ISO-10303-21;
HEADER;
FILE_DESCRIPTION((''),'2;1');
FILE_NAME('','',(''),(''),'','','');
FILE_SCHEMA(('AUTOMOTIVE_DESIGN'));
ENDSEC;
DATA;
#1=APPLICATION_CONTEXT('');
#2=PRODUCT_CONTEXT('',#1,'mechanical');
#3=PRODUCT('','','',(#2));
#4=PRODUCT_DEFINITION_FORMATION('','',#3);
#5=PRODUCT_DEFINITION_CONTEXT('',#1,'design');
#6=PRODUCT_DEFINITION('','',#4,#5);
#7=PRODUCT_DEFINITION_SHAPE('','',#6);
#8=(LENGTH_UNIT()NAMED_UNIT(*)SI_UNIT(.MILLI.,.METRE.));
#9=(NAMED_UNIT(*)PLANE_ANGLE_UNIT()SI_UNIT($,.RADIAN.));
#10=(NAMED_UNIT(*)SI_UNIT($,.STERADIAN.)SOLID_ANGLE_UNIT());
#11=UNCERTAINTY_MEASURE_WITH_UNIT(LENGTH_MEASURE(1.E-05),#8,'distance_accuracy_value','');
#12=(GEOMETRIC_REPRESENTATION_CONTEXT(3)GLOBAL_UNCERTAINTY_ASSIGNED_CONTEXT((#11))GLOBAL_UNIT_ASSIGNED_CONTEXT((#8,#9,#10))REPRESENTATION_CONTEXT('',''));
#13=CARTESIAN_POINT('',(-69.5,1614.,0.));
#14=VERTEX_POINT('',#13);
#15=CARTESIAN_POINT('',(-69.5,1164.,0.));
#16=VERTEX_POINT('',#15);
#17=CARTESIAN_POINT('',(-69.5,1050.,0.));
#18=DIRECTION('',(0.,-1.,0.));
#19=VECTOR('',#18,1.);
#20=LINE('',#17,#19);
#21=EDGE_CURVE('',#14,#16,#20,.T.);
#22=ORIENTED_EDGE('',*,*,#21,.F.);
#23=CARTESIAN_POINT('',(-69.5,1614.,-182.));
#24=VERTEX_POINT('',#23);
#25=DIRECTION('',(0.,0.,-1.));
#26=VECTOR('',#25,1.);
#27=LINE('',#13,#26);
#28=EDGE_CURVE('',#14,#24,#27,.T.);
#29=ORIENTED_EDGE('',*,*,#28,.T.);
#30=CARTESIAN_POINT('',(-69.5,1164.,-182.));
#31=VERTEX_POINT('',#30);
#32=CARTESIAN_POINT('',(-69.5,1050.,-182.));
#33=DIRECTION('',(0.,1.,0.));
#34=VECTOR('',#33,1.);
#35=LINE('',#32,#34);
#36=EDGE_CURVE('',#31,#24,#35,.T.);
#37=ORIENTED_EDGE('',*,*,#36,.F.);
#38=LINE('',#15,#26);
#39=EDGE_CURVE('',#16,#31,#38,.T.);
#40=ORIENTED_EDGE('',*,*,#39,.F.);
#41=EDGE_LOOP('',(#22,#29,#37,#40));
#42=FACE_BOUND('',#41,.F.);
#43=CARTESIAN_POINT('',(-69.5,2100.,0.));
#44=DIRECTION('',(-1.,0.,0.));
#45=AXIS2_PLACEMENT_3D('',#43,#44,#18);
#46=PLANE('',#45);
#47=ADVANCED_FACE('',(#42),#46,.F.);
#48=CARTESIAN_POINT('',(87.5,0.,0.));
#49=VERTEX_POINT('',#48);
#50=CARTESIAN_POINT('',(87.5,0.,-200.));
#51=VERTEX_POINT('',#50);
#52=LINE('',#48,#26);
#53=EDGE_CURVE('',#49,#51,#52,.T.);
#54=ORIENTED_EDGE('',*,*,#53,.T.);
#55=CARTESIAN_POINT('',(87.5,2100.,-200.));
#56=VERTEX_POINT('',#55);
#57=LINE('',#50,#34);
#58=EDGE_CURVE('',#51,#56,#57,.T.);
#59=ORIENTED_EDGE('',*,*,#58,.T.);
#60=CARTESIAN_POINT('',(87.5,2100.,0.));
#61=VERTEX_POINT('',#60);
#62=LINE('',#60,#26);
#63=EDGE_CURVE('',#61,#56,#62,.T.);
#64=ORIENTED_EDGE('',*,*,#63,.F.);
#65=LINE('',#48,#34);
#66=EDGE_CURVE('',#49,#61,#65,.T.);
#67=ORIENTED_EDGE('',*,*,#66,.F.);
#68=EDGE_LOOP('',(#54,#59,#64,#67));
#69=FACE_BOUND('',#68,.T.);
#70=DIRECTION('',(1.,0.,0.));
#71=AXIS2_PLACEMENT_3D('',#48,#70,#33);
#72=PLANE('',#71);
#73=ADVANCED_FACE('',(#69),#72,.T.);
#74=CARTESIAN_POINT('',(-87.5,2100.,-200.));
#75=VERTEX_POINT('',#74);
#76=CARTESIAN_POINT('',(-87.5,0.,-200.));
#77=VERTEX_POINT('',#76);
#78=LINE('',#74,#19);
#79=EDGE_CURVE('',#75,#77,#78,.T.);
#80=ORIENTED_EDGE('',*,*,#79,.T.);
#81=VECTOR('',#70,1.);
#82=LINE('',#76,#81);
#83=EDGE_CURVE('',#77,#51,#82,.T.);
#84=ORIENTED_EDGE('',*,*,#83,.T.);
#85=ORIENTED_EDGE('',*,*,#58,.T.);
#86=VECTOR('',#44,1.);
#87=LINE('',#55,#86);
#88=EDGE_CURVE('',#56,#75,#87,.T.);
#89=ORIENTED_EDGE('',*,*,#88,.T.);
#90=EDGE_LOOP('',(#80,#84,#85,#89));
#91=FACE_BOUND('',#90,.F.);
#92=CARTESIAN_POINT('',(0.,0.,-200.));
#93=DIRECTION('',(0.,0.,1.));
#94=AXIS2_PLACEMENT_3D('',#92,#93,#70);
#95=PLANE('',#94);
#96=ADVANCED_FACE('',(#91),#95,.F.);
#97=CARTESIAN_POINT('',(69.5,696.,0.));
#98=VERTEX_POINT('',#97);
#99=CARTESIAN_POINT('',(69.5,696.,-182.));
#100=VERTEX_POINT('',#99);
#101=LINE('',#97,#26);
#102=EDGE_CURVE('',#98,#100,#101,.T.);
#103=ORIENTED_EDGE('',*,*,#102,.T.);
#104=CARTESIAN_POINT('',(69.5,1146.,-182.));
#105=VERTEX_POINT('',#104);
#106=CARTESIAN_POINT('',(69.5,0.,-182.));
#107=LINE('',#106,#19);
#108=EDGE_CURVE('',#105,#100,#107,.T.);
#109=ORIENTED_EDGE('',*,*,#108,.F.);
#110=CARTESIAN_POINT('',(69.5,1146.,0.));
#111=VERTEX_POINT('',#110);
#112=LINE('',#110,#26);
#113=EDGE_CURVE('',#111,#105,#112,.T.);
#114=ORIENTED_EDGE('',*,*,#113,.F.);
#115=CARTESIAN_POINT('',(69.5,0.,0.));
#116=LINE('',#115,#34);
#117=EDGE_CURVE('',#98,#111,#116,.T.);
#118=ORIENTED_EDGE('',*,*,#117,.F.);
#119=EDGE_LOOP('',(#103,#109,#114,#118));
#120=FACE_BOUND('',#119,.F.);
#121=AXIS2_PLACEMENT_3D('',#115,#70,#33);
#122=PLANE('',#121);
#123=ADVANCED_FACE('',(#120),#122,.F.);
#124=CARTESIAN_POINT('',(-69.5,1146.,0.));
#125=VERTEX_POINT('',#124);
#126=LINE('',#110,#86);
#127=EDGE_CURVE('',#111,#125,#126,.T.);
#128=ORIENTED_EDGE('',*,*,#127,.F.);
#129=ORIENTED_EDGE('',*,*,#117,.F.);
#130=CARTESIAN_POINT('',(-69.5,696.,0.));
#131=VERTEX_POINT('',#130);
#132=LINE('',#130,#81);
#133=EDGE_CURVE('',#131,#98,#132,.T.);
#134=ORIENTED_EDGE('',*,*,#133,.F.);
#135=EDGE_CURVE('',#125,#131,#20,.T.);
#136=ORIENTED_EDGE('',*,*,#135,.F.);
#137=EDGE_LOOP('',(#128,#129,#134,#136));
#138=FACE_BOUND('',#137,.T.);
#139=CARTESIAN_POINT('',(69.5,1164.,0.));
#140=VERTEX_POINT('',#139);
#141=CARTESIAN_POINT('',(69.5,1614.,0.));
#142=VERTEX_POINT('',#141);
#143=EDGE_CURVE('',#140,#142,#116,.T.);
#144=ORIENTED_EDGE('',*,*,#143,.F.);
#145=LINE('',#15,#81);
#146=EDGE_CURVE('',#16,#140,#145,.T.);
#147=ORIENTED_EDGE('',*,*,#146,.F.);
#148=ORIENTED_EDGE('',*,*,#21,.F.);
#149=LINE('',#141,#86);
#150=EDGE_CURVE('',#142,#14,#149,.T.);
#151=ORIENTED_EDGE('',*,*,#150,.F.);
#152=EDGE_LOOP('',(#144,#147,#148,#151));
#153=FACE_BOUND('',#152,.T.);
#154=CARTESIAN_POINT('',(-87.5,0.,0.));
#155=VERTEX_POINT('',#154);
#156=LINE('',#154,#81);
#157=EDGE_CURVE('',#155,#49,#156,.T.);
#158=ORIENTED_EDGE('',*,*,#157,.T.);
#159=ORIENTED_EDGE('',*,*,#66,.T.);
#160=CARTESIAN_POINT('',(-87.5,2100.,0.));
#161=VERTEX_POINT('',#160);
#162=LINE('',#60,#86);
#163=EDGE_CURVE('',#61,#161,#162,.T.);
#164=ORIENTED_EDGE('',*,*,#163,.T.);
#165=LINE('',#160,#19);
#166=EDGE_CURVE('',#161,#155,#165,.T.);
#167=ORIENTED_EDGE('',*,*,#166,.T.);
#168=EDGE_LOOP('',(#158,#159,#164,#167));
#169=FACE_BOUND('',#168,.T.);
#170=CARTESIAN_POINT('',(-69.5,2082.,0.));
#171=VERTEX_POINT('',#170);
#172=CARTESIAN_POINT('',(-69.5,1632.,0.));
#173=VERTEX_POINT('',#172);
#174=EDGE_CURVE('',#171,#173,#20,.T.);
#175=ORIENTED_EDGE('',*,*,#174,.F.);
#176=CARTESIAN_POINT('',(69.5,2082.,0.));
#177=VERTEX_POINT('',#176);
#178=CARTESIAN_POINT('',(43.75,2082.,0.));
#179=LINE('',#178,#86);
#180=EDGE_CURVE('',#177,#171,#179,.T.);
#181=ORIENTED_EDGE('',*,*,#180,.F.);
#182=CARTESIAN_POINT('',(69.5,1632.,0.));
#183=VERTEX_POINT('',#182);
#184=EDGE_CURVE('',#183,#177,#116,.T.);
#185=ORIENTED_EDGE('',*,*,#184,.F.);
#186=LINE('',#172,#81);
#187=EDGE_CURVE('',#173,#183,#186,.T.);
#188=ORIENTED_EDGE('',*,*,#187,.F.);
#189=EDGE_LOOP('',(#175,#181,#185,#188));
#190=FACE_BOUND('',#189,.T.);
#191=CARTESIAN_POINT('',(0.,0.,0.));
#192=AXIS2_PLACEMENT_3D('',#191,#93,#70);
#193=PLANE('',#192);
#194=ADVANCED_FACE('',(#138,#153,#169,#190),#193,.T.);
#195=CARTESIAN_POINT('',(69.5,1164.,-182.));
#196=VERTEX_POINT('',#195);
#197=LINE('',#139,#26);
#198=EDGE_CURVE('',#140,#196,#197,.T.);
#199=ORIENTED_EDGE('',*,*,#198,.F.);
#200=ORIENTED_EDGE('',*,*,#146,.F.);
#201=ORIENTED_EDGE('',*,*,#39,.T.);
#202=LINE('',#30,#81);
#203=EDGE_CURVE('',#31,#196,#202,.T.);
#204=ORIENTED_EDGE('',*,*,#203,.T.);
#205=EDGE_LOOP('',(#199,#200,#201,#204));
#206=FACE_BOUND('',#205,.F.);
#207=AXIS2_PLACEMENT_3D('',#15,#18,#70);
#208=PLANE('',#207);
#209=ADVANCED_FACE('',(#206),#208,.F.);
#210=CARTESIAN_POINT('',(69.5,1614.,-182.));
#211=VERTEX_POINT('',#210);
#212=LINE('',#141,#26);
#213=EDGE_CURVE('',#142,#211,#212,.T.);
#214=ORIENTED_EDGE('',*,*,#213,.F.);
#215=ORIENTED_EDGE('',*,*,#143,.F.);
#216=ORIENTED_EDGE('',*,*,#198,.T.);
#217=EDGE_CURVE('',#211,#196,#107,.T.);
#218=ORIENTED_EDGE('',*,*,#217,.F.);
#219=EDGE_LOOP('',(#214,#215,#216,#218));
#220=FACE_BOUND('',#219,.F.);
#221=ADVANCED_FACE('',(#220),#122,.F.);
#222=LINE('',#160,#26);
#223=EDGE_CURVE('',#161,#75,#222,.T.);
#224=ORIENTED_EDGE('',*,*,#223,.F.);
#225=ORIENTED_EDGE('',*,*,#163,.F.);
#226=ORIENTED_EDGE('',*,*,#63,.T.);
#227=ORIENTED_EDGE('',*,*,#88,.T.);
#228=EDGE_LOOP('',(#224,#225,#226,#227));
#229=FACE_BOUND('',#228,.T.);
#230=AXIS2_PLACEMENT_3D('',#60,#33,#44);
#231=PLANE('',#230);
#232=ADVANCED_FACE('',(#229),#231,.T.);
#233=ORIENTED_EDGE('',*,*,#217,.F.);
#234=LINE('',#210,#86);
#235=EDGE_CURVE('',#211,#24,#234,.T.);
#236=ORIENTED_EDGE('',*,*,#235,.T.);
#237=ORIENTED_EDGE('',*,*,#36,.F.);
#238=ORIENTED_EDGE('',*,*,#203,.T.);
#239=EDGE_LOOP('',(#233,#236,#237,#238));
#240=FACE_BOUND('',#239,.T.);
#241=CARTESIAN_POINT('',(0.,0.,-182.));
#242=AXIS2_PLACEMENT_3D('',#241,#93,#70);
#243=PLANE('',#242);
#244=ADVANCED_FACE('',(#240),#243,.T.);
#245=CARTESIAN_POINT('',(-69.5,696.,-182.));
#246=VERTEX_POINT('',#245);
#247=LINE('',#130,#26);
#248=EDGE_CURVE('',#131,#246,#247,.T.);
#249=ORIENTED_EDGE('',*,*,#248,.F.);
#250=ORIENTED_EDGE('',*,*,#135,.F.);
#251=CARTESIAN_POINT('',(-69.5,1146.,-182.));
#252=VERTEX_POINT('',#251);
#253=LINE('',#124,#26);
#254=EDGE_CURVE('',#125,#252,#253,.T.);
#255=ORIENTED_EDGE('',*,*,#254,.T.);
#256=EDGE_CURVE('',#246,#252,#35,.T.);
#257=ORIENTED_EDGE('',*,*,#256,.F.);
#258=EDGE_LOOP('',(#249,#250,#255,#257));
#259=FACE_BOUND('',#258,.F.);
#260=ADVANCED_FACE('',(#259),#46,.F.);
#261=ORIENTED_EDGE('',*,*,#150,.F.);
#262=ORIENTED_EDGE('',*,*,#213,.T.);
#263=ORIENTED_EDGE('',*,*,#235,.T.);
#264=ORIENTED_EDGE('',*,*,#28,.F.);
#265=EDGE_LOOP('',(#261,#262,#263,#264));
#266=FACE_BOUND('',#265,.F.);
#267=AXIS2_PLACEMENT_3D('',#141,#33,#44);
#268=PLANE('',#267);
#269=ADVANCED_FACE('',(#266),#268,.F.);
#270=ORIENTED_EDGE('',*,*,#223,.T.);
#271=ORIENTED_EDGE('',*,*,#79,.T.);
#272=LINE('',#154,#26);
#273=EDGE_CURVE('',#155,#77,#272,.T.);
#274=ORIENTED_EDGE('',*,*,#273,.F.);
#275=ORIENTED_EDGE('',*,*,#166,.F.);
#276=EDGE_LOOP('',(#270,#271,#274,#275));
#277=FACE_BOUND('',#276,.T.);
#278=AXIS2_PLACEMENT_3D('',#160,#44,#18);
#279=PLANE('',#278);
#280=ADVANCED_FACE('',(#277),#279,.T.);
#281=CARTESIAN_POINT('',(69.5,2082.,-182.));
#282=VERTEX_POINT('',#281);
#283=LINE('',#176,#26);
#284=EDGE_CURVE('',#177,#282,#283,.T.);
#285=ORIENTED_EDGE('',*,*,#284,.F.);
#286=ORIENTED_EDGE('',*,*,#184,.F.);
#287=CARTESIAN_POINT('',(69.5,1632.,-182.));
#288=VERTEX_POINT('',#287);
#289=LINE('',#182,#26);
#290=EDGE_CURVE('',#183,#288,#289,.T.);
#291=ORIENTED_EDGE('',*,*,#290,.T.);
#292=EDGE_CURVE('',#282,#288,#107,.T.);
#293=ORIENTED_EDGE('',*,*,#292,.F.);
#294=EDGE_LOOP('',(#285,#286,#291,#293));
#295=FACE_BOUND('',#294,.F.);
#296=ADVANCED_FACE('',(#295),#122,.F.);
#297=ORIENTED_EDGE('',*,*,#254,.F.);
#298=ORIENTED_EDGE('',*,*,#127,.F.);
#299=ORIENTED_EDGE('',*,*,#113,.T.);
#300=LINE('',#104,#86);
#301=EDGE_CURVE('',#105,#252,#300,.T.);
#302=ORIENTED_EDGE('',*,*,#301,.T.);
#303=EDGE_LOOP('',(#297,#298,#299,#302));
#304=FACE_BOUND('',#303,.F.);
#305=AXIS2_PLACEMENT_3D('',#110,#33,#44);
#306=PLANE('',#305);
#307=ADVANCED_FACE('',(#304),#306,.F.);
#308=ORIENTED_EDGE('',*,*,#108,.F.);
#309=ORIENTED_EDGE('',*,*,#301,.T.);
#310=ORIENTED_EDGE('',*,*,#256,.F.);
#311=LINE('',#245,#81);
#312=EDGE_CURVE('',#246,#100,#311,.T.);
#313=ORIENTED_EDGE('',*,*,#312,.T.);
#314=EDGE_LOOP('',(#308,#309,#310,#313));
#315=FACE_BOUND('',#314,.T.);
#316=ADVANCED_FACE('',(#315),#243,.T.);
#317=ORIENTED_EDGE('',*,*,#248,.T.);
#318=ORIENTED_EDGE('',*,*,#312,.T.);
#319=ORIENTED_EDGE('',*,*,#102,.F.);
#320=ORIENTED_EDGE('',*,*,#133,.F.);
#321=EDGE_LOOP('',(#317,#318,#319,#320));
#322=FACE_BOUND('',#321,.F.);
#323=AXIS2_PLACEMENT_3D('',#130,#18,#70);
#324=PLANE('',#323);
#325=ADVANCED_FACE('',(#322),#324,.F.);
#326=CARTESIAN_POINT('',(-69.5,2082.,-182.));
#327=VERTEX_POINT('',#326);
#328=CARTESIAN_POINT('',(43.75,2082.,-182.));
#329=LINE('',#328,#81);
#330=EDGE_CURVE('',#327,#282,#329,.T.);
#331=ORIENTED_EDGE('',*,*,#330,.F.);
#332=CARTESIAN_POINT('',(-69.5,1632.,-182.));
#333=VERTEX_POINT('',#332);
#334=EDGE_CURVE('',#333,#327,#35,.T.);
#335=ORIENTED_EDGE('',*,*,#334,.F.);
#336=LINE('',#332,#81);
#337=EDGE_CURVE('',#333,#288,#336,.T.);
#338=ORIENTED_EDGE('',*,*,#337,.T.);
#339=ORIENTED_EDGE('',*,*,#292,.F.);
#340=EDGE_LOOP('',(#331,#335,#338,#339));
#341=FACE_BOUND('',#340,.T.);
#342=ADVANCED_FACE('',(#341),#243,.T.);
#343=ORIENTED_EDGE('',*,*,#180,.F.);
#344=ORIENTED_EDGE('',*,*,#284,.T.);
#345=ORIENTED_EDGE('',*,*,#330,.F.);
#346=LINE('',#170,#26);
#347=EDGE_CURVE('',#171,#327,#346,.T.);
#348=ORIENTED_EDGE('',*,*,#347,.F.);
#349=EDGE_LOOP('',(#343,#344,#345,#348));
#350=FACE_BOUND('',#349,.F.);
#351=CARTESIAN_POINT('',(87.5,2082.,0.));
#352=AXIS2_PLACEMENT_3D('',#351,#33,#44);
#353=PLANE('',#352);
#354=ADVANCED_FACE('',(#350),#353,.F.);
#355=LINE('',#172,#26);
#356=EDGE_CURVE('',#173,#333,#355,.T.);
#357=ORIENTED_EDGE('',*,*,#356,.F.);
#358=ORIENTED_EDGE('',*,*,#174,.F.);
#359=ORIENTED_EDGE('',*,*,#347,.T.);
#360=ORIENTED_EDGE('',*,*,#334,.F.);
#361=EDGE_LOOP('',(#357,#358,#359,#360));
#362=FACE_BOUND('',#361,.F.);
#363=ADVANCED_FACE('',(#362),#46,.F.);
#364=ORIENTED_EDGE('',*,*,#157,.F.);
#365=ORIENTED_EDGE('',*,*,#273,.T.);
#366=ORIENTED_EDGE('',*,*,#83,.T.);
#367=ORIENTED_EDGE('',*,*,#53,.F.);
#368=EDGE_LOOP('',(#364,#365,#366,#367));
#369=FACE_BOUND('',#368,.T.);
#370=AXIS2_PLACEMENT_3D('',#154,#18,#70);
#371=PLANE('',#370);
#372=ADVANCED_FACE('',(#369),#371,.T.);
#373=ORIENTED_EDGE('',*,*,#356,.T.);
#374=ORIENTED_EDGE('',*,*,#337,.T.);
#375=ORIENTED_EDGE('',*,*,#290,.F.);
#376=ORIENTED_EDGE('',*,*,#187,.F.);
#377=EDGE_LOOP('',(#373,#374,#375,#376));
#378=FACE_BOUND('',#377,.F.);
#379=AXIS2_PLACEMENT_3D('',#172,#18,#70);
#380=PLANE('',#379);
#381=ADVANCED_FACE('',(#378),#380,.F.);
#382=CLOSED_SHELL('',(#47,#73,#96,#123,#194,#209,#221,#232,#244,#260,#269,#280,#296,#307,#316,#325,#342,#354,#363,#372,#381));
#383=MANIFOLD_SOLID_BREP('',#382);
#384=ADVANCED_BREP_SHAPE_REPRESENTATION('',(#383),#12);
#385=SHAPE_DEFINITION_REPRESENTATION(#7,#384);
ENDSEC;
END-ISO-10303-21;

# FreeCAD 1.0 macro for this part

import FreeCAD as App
import Part
import Sketcher

V = App.Vector


def faces_at(feature, points):
    """Names of the faces that lie closest to the given points."""
    faces = feature.Shape.Faces
    near = lambda p: min(range(len(faces)), key=lambda i: faces[i].distToShape(Part.Vertex(*p))[0])
    return sorted({f"Face{near(p) + 1}" for p in points})


def add_polygon(sketch, points):
    """Adds a closed chain of lines whose ends are joined by coincident constraints."""
    first, n = sketch.GeometryCount, len(points)
    for a, b in zip(points, points[1:] + points[:1]):
        sketch.addGeometry(Part.LineSegment(App.Vector(*a, 0), App.Vector(*b, 0)), False)
    for i in range(n):
        sketch.addConstraint(Sketcher.Constraint("Coincident", first + i, 2, first + (i + 1) % n, 1))

doc = App.newDocument("Part")
body = doc.addObject("PartDesign::Body", "Body")

# Sketch on XY plane
sketch1 = body.newObject("Sketcher::SketchObject", "Sketch")
sketch1.AttachmentSupport = (doc.getObject("XY_Plane"), [""])
sketch1.MapMode = "FlatFace"
add_polygon(sketch1, [(-88, 2100), (-88, 0), (88, 0), (88, 2100)])  # lines 0-3
sketch1.addConstraint([
    Sketcher.Constraint("Vertical", 0),
    Sketcher.Constraint("Horizontal", 1),
    Sketcher.Constraint("Vertical", 2),
    Sketcher.Constraint("Horizontal", 3),
    Sketcher.Constraint("Symmetric", 0, 2, 1, 2, -1, 1),
    Sketcher.Constraint("DistanceX", 1, 1, 1, 2, 175.0),
    Sketcher.Constraint("DistanceY", 0, 2, 0, 1, 2100.0),
])
pad1 = body.newObject("PartDesign::Pad", "Pad")
pad1.Profile = sketch1
pad1.Length = 200
pad1.Reversed = True
doc.recompute()

thickness = body.newObject("PartDesign::Thickness", "Thickness")
thickness.Base = (pad1, faces_at(pad1, [(-29.167, 1400, 0)]))
thickness.Value = 18
thickness.Reversed = True
thickness.Join = "Intersection"

# Sketch on XY plane
sketch2 = body.newObject("Sketcher::SketchObject", "Sketch001")
sketch2.AttachmentSupport = (doc.getObject("XY_Plane"), [""])
sketch2.MapMode = "FlatFace"
add_polygon(sketch2, [(-70, 696), (-70, 18), (70, 18), (70, 696)])  # lines 0-3
add_polygon(sketch2, [(-70, 1164), (-70, 1146), (70, 1146), (70, 1164)])  # lines 4-7
add_polygon(sketch2, [(-70, 1632), (-70, 1614), (70, 1614), (70, 1632)])  # lines 8-11
sketch2.addConstraint([
    Sketcher.Constraint("Vertical", 0),
    Sketcher.Constraint("Horizontal", 1),
    Sketcher.Constraint("Vertical", 2),
    Sketcher.Constraint("Horizontal", 3),
    Sketcher.Constraint("Vertical", 4),
    Sketcher.Constraint("Horizontal", 5),
    Sketcher.Constraint("Vertical", 6),
    Sketcher.Constraint("Horizontal", 7),
    Sketcher.Constraint("Vertical", 8),
    Sketcher.Constraint("Horizontal", 9),
    Sketcher.Constraint("Vertical", 10),
    Sketcher.Constraint("Horizontal", 11),
    Sketcher.Constraint("Vertical", 3, 2, 4, 2),
    Sketcher.Constraint("Vertical", 2, 2, 5, 2),
    Sketcher.Constraint("Vertical", 7, 2, 8, 2),
    Sketcher.Constraint("Vertical", 6, 2, 9, 2),
    Sketcher.Constraint("Equal", 6, 8),
    Sketcher.Constraint("DistanceY", 0, 2, 0, 1, 678.0),
    Sketcher.Constraint("DistanceY", 4, 2, 4, 1, 18.0),
    Sketcher.Constraint("DistanceY", -1, 1, 0, 2, 18.0),
    Sketcher.Constraint("DistanceY", 3, 2, 4, 2, 450.0),
    Sketcher.Constraint("DistanceY", 7, 2, 8, 2, 450.0),
    Sketcher.Constraint("DistanceX", 1, 1, 1, 2, 139.0),
    Sketcher.Constraint("DistanceX", 0, 2, -1, 1, 69.5),
])
pad2 = body.newObject("PartDesign::Pad", "Pad001")
pad2.Profile = sketch2
pad2.Length = 182
pad2.Reversed = True

doc.recompute()
